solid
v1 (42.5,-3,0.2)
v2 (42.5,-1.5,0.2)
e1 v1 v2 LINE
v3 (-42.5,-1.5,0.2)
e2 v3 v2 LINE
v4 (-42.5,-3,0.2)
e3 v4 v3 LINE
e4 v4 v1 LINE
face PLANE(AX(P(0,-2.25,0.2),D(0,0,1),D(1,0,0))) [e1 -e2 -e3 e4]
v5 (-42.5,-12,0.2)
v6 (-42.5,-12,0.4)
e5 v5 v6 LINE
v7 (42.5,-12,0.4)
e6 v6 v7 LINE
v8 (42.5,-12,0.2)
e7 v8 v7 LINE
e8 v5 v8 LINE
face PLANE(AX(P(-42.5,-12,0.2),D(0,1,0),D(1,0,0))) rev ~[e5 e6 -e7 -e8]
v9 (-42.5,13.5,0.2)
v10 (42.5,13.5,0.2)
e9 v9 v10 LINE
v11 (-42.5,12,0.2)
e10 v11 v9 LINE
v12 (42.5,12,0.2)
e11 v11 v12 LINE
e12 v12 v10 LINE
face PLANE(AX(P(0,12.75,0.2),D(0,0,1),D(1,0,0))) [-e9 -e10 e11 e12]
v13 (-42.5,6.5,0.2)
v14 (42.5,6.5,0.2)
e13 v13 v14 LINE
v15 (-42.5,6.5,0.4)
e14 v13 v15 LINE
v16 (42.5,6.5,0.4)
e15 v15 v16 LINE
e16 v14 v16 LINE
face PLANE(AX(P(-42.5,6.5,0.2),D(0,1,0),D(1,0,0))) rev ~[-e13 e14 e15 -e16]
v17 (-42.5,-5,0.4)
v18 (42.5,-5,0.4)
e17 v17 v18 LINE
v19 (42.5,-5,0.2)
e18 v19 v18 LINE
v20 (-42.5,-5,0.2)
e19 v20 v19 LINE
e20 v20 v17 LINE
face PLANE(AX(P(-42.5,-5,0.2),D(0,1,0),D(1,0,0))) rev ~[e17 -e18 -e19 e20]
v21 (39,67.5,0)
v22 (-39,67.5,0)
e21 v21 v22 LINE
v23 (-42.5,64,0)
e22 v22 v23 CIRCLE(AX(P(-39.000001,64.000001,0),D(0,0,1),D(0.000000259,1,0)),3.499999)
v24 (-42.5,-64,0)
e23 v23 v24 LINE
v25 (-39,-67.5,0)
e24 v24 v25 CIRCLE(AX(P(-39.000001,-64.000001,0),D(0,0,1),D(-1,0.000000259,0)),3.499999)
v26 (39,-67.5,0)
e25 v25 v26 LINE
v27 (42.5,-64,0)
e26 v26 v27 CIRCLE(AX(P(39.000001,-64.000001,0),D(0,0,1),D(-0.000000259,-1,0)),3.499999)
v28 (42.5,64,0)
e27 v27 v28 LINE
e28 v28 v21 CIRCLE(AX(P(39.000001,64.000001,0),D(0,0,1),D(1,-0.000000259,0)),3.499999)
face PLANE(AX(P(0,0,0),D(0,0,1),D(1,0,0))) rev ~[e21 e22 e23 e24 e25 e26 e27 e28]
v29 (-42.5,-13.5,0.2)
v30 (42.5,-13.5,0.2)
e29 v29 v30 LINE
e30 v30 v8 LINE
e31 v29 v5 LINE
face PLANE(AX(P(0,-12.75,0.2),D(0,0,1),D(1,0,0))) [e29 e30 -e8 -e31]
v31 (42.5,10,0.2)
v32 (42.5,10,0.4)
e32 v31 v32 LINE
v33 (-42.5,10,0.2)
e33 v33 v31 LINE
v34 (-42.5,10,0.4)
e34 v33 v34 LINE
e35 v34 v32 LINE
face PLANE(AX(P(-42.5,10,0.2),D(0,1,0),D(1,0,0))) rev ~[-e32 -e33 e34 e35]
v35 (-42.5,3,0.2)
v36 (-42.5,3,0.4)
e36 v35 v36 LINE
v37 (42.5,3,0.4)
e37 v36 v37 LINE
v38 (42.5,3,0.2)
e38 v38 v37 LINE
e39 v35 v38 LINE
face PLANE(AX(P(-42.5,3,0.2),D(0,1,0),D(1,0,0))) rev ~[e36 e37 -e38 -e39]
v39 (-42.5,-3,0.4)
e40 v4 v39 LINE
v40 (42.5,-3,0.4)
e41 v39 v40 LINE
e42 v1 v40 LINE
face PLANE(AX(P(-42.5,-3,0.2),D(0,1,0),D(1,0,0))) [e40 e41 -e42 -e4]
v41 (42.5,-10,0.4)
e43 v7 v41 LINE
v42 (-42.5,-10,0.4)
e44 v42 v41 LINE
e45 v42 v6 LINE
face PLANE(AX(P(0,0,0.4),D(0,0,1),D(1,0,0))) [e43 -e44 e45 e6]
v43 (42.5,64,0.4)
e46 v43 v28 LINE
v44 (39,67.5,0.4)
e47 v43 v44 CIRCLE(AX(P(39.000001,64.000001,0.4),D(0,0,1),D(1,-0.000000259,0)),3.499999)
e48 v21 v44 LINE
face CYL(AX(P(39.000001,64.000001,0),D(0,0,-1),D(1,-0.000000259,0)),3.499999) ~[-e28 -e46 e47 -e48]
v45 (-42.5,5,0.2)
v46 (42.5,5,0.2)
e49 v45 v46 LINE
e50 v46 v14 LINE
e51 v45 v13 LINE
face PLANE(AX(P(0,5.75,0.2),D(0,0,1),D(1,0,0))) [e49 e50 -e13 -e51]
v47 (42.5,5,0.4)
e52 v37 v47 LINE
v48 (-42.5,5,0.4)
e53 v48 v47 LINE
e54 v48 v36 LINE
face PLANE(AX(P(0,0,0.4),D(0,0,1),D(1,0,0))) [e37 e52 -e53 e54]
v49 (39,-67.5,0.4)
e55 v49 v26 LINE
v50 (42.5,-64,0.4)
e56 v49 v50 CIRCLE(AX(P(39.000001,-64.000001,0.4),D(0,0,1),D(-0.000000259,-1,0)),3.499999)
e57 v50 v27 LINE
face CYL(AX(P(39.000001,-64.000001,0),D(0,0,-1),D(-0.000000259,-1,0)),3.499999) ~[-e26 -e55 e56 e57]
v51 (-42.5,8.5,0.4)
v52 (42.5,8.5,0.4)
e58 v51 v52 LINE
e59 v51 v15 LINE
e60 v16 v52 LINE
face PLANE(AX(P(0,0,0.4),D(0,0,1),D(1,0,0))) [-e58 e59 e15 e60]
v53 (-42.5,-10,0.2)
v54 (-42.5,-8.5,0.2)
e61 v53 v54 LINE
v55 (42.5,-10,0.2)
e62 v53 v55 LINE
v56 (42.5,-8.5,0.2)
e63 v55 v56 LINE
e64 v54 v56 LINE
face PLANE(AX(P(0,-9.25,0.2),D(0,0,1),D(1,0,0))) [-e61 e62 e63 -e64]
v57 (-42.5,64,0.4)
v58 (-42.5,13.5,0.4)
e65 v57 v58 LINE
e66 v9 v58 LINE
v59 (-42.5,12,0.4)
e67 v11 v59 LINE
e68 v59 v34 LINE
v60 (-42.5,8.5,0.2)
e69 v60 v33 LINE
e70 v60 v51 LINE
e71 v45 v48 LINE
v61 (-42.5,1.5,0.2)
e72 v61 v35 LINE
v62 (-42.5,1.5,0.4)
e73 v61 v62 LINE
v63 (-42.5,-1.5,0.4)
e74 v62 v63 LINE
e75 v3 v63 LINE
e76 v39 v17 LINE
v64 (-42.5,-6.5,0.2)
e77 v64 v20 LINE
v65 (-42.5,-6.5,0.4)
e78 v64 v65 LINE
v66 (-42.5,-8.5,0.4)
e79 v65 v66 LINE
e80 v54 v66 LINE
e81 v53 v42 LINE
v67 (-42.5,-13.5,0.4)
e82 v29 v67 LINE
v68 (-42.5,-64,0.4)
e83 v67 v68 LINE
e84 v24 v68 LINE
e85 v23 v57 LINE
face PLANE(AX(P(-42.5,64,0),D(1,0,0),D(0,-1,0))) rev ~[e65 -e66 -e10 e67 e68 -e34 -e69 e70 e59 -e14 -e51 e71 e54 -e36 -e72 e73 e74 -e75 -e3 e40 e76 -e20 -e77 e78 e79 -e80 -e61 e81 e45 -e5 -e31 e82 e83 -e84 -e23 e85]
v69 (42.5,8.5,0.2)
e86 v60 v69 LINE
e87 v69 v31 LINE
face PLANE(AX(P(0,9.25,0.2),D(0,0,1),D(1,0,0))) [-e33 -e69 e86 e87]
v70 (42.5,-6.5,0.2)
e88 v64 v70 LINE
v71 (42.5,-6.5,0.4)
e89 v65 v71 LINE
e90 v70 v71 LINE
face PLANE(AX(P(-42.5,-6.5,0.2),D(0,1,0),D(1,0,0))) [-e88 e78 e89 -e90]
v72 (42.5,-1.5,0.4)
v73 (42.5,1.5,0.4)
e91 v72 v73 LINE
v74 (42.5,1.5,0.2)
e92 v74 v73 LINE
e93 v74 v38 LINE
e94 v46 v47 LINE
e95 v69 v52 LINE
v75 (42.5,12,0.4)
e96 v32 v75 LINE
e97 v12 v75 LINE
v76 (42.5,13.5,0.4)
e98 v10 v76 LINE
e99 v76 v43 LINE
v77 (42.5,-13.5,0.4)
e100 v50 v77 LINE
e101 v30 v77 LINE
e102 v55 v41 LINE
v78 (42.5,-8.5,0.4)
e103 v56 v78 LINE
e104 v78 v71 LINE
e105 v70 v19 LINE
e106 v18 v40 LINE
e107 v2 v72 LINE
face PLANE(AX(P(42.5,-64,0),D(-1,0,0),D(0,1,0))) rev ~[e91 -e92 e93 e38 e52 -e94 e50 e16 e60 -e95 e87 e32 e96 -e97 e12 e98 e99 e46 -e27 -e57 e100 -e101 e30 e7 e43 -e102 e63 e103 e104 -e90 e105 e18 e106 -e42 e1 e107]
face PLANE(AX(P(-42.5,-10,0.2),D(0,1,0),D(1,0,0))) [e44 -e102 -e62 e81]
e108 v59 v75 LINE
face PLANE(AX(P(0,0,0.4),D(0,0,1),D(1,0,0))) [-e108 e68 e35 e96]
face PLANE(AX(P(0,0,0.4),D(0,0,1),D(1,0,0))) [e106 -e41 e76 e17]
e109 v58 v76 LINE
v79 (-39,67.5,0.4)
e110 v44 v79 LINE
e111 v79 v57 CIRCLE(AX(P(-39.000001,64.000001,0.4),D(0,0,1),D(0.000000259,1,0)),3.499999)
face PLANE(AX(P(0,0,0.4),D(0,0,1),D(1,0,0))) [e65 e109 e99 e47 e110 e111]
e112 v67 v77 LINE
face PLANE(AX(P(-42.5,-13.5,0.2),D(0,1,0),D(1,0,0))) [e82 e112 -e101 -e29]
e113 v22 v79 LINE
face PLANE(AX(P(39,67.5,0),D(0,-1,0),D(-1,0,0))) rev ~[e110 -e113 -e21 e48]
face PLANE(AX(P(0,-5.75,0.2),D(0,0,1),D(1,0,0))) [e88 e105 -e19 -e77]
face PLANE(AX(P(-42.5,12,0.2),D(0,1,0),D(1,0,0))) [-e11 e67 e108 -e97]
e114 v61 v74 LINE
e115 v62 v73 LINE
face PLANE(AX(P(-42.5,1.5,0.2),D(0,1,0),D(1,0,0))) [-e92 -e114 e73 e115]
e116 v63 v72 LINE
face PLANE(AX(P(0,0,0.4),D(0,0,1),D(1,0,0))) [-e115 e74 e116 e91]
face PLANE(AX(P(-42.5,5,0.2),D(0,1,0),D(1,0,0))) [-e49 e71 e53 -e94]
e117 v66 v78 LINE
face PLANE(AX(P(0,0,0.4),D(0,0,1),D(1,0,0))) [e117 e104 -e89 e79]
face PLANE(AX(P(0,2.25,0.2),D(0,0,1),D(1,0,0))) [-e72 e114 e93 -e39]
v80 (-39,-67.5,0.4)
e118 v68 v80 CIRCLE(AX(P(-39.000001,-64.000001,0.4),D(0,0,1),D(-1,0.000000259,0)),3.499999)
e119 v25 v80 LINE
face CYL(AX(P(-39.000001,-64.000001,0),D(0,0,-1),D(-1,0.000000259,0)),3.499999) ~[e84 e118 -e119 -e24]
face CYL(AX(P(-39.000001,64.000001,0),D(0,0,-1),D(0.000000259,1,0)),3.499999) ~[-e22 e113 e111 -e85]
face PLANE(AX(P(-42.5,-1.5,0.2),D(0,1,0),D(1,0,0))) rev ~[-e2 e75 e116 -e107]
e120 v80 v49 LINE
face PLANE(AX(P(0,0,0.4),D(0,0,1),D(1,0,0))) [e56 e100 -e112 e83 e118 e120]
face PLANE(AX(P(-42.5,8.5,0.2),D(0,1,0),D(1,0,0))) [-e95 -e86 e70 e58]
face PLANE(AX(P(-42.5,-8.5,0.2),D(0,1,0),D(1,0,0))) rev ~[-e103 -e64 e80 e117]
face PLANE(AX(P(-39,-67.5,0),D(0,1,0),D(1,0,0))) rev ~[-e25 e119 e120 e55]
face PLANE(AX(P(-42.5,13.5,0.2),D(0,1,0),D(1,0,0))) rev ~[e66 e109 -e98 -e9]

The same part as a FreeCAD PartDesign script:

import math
import FreeCAD as App
import Part
import Sketcher
from FreeCAD import Vector

doc = App.newDocument("Part")
body = doc.addObject("PartDesign::Body", "Body")

sketch1 = body.newObject("Sketcher::SketchObject", "Sketch")
sketch1.AttachmentSupport = (doc.getObject("XY_Plane"), [""])
sketch1.MapMode = "FlatFace"
sketch1.addGeometry(Part.ArcOfCircle(Part.Circle(Vector(39.000001, 64.000001, 0), Vector(0, 0, 1), 3.499999), math.radians(-0.000015), math.radians(90.000015)), False)
sketch1.addGeometry(Part.LineSegment(Vector(39, 67.5, 0), Vector(-39, 67.5, 0)), False)
sketch1.addGeometry(Part.ArcOfCircle(Part.Circle(Vector(-39.000001, 64.000001, 0), Vector(0, 0, 1), 3.499999), math.radians(89.999985), math.radians(180.000015)), False)
sketch1.addGeometry(Part.LineSegment(Vector(-42.5, 64, 0), Vector(-42.5, -64, 0)), False)
sketch1.addGeometry(Part.ArcOfCircle(Part.Circle(Vector(-39.000001, -64.000001, 0), Vector(0, 0, 1), 3.499999), math.radians(179.999985), math.radians(270.000015)), False)
sketch1.addGeometry(Part.LineSegment(Vector(-39, -67.5, 0), Vector(39, -67.5, 0)), False)
sketch1.addGeometry(Part.ArcOfCircle(Part.Circle(Vector(39.000001, -64.000001, 0), Vector(0, 0, 1), 3.499999), math.radians(-90.000015), math.radians(0.000015)), False)
sketch1.addGeometry(Part.LineSegment(Vector(42.5, -64, 0), Vector(42.5, 64, 0)), False)
sketch1.addConstraint(Sketcher.Constraint("Tangent", 0, 2, 1, 1))
sketch1.addConstraint(Sketcher.Constraint("Tangent", 1, 2, 2, 1))
sketch1.addConstraint(Sketcher.Constraint("Tangent", 2, 2, 3, 1))
sketch1.addConstraint(Sketcher.Constraint("Tangent", 3, 2, 4, 1))
sketch1.addConstraint(Sketcher.Constraint("Tangent", 4, 2, 5, 1))
sketch1.addConstraint(Sketcher.Constraint("Tangent", 5, 2, 6, 1))
sketch1.addConstraint(Sketcher.Constraint("Tangent", 6, 2, 7, 1))
sketch1.addConstraint(Sketcher.Constraint("Tangent", 7, 2, 0, 1))
sketch1.addConstraint(Sketcher.Constraint("Horizontal", 1))
sketch1.addConstraint(Sketcher.Constraint("Vertical", 3))
sketch1.addConstraint(Sketcher.Constraint("Horizontal", 5))
sketch1.addConstraint(Sketcher.Constraint("Vertical", 7))
sketch1.addConstraint(Sketcher.Constraint("Equal", 0, 2))
sketch1.addConstraint(Sketcher.Constraint("Equal", 2, 4))
sketch1.addConstraint(Sketcher.Constraint("Equal", 4, 6))
sketch1.addConstraint(Sketcher.Constraint("Symmetric", 0, 3, 4, 3, -1, 1))
sketch1.addConstraint(Sketcher.Constraint("Radius", 0, 3.499999))
sketch1.addConstraint(Sketcher.Constraint("DistanceX", 1, 2, 1, 1, 78.0))
sketch1.addConstraint(Sketcher.Constraint("DistanceY", 3, 2, 3, 1, 128.0))
pad1 = body.newObject("PartDesign::Pad", "Pad")
pad1.Profile = sketch1
pad1.Length = 0.2

sketch2 = body.newObject("Sketcher::SketchObject", "Sketch001")
sketch2.AttachmentSupport = (doc.getObject("XY_Plane"), [""])
sketch2.MapMode = "FlatFace"
sketch2.addGeometry(Part.ArcOfCircle(Part.Circle(Vector(39.000001, 64.000001, 0), Vector(0, 0, 1), 3.499999), math.radians(-0.000015), math.radians(90.000015)), False)
sketch2.addGeometry(Part.LineSegment(Vector(39, 67.5, 0), Vector(-39, 67.5, 0)), False)
sketch2.addGeometry(Part.ArcOfCircle(Part.Circle(Vector(-39.000001, 64.000001, 0), Vector(0, 0, 1), 3.499999), math.radians(89.999985), math.radians(180.000015)), False)
sketch2.addGeometry(Part.LineSegment(Vector(-42.5, 64, 0), Vector(-42.5, -64, 0)), False)
sketch2.addGeometry(Part.ArcOfCircle(Part.Circle(Vector(-39.000001, -64.000001, 0), Vector(0, 0, 1), 3.499999), math.radians(179.999985), math.radians(270.000015)), False)
sketch2.addGeometry(Part.LineSegment(Vector(-39, -67.5, 0), Vector(39, -67.5, 0)), False)
sketch2.addGeometry(Part.ArcOfCircle(Part.Circle(Vector(39.000001, -64.000001, 0), Vector(0, 0, 1), 3.499999), math.radians(-90.000015), math.radians(0.000015)), False)
sketch2.addGeometry(Part.LineSegment(Vector(42.5, -64, 0), Vector(42.5, 64, 0)), False)
sketch2.addConstraint(Sketcher.Constraint("Tangent", 0, 2, 1, 1))
sketch2.addConstraint(Sketcher.Constraint("Tangent", 1, 2, 2, 1))
sketch2.addConstraint(Sketcher.Constraint("Tangent", 2, 2, 3, 1))
sketch2.addConstraint(Sketcher.Constraint("Tangent", 3, 2, 4, 1))
sketch2.addConstraint(Sketcher.Constraint("Tangent", 4, 2, 5, 1))
sketch2.addConstraint(Sketcher.Constraint("Tangent", 5, 2, 6, 1))
sketch2.addConstraint(Sketcher.Constraint("Tangent", 6, 2, 7, 1))
sketch2.addConstraint(Sketcher.Constraint("Tangent", 7, 2, 0, 1))
sketch2.addConstraint(Sketcher.Constraint("Horizontal", 1))
sketch2.addConstraint(Sketcher.Constraint("Vertical", 3))
sketch2.addConstraint(Sketcher.Constraint("Horizontal", 5))
sketch2.addConstraint(Sketcher.Constraint("Vertical", 7))
sketch2.addConstraint(Sketcher.Constraint("Equal", 0, 2))
sketch2.addConstraint(Sketcher.Constraint("Equal", 2, 4))
sketch2.addConstraint(Sketcher.Constraint("Equal", 4, 6))
sketch2.addConstraint(Sketcher.Constraint("Symmetric", 0, 3, 4, 3, -1, 1))
sketch2.addConstraint(Sketcher.Constraint("Radius", 0, 3.499999))
sketch2.addConstraint(Sketcher.Constraint("DistanceX", 1, 2, 1, 1, 78.0))
sketch2.addConstraint(Sketcher.Constraint("DistanceY", 3, 2, 3, 1, 128.0))
pad2 = body.newObject("PartDesign::Pad", "Pad001")
pad2.Profile = sketch2
pad2.Length = 0.4

sketch3 = body.newObject("Sketcher::SketchObject", "Sketch002")
sketch3.AttachmentSupport = (doc.getObject("XY_Plane"), [""])
sketch3.MapMode = "FlatFace"
sketch3.AttachmentOffset = App.Placement(Vector(0, 0, 0.2), App.Rotation())
sketch3.addGeometry(Part.LineSegment(Vector(-42.5, 13.5, 0), Vector(-42.5, 12, 0)), False)
sketch3.addGeometry(Part.LineSegment(Vector(-42.5, 12, 0), Vector(42.5, 12, 0)), False)
sketch3.addGeometry(Part.LineSegment(Vector(42.5, 12, 0), Vector(42.5, 13.5, 0)), False)
sketch3.addGeometry(Part.LineSegment(Vector(42.5, 13.5, 0), Vector(-42.5, 13.5, 0)), False)
sketch3.addGeometry(Part.LineSegment(Vector(-42.5, 10, 0), Vector(-42.5, 8.5, 0)), False)
sketch3.addGeometry(Part.LineSegment(Vector(-42.5, 8.5, 0), Vector(42.5, 8.5, 0)), False)
sketch3.addGeometry(Part.LineSegment(Vector(42.5, 8.5, 0), Vector(42.5, 10, 0)), False)
sketch3.addGeometry(Part.LineSegment(Vector(42.5, 10, 0), Vector(-42.5, 10, 0)), False)
sketch3.addGeometry(Part.LineSegment(Vector(-42.5, 6.5, 0), Vector(-42.5, 5, 0)), False)
sketch3.addGeometry(Part.LineSegment(Vector(-42.5, 5, 0), Vector(42.5, 5, 0)), False)
sketch3.addGeometry(Part.LineSegment(Vector(42.5, 5, 0), Vector(42.5, 6.5, 0)), False)
sketch3.addGeometry(Part.LineSegment(Vector(42.5, 6.5, 0), Vector(-42.5, 6.5, 0)), False)
sketch3.addGeometry(Part.LineSegment(Vector(-42.5, -12, 0), Vector(-42.5, -13.5, 0)), False)
sketch3.addGeometry(Part.LineSegment(Vector(-42.5, -13.5, 0), Vector(42.5, -13.5, 0)), False)
sketch3.addGeometry(Part.LineSegment(Vector(42.5, -13.5, 0), Vector(42.5, -12, 0)), False)
sketch3.addGeometry(Part.LineSegment(Vector(42.5, -12, 0), Vector(-42.5, -12, 0)), False)
sketch3.addGeometry(Part.LineSegment(Vector(-42.5, -8.5, 0), Vector(-42.5, -10, 0)), False)
sketch3.addGeometry(Part.LineSegment(Vector(-42.5, -10, 0), Vector(42.5, -10, 0)), False)
sketch3.addGeometry(Part.LineSegment(Vector(42.5, -10, 0), Vector(42.5, -8.5, 0)), False)
sketch3.addGeometry(Part.LineSegment(Vector(42.5, -8.5, 0), Vector(-42.5, -8.5, 0)), False)
sketch3.addGeometry(Part.LineSegment(Vector(-42.5, -5, 0), Vector(-42.5, -6.5, 0)), False)
sketch3.addGeometry(Part.LineSegment(Vector(-42.5, -6.5, 0), Vector(42.5, -6.5, 0)), False)
sketch3.addGeometry(Part.LineSegment(Vector(42.5, -6.5, 0), Vector(42.5, -5, 0)), False)
sketch3.addGeometry(Part.LineSegment(Vector(42.5, -5, 0), Vector(-42.5, -5, 0)), False)
sketch3.addGeometry(Part.LineSegment(Vector(-42.5, 3, 0), Vector(-42.5, 1.5, 0)), False)
sketch3.addGeometry(Part.LineSegment(Vector(-42.5, 1.5, 0), Vector(42.5, 1.5, 0)), False)
sketch3.addGeometry(Part.LineSegment(Vector(42.5, 1.5, 0), Vector(42.5, 3, 0)), False)
sketch3.addGeometry(Part.LineSegment(Vector(42.5, 3, 0), Vector(-42.5, 3, 0)), False)
sketch3.addGeometry(Part.LineSegment(Vector(-42.5, -1.5, 0), Vector(-42.5, -3, 0)), False)
sketch3.addGeometry(Part.LineSegment(Vector(-42.5, -3, 0), Vector(42.5, -3, 0)), False)
sketch3.addGeometry(Part.LineSegment(Vector(42.5, -3, 0), Vector(42.5, -1.5, 0)), False)
sketch3.addGeometry(Part.LineSegment(Vector(42.5, -1.5, 0), Vector(-42.5, -1.5, 0)), False)
sketch3.addConstraint(Sketcher.Constraint("Coincident", 0, 2, 1, 1))
sketch3.addConstraint(Sketcher.Constraint("Coincident", 1, 2, 2, 1))
sketch3.addConstraint(Sketcher.Constraint("Coincident", 2, 2, 3, 1))
sketch3.addConstraint(Sketcher.Constraint("Coincident", 3, 2, 0, 1))
sketch3.addConstraint(Sketcher.Constraint("Coincident", 4, 2, 5, 1))
sketch3.addConstraint(Sketcher.Constraint("Coincident", 5, 2, 6, 1))
sketch3.addConstraint(Sketcher.Constraint("Coincident", 6, 2, 7, 1))
sketch3.addConstraint(Sketcher.Constraint("Coincident", 7, 2, 4, 1))
sketch3.addConstraint(Sketcher.Constraint("Coincident", 8, 2, 9, 1))
sketch3.addConstraint(Sketcher.Constraint("Coincident", 9, 2, 10, 1))
sketch3.addConstraint(Sketcher.Constraint("Coincident", 10, 2, 11, 1))
sketch3.addConstraint(Sketcher.Constraint("Coincident", 11, 2, 8, 1))
sketch3.addConstraint(Sketcher.Constraint("Coincident", 12, 2, 13, 1))
sketch3.addConstraint(Sketcher.Constraint("Coincident", 13, 2, 14, 1))
sketch3.addConstraint(Sketcher.Constraint("Coincident", 14, 2, 15, 1))
sketch3.addConstraint(Sketcher.Constraint("Coincident", 15, 2, 12, 1))
sketch3.addConstraint(Sketcher.Constraint("Coincident", 16, 2, 17, 1))
sketch3.addConstraint(Sketcher.Constraint("Coincident", 17, 2, 18, 1))
sketch3.addConstraint(Sketcher.Constraint("Coincident", 18, 2, 19, 1))
sketch3.addConstraint(Sketcher.Constraint("Coincident", 19, 2, 16, 1))
sketch3.addConstraint(Sketcher.Constraint("Coincident", 20, 2, 21, 1))
sketch3.addConstraint(Sketcher.Constraint("Coincident", 21, 2, 22, 1))
sketch3.addConstraint(Sketcher.Constraint("Coincident", 22, 2, 23, 1))
sketch3.addConstraint(Sketcher.Constraint("Coincident", 23, 2, 20, 1))
sketch3.addConstraint(Sketcher.Constraint("Coincident", 24, 2, 25, 1))
sketch3.addConstraint(Sketcher.Constraint("Coincident", 25, 2, 26, 1))
sketch3.addConstraint(Sketcher.Constraint("Coincident", 26, 2, 27, 1))
sketch3.addConstraint(Sketcher.Constraint("Coincident", 27, 2, 24, 1))
sketch3.addConstraint(Sketcher.Constraint("Coincident", 28, 2, 29, 1))
sketch3.addConstraint(Sketcher.Constraint("Coincident", 29, 2, 30, 1))
sketch3.addConstraint(Sketcher.Constraint("Coincident", 30, 2, 31, 1))
sketch3.addConstraint(Sketcher.Constraint("Coincident", 31, 2, 28, 1))
sketch3.addConstraint(Sketcher.Constraint("Vertical", 0))
sketch3.addConstraint(Sketcher.Constraint("Horizontal", 1))
sketch3.addConstraint(Sketcher.Constraint("Vertical", 2))
sketch3.addConstraint(Sketcher.Constraint("Horizontal", 3))
sketch3.addConstraint(Sketcher.Constraint("Vertical", 4))
sketch3.addConstraint(Sketcher.Constraint("Horizontal", 5))
sketch3.addConstraint(Sketcher.Constraint("Vertical", 6))
sketch3.addConstraint(Sketcher.Constraint("Horizontal", 7))
sketch3.addConstraint(Sketcher.Constraint("Vertical", 8))
sketch3.addConstraint(Sketcher.Constraint("Horizontal", 9))
sketch3.addConstraint(Sketcher.Constraint("Vertical", 10))
sketch3.addConstraint(Sketcher.Constraint("Horizontal", 11))
sketch3.addConstraint(Sketcher.Constraint("Vertical", 12))
sketch3.addConstraint(Sketcher.Constraint("Horizontal", 13))
sketch3.addConstraint(Sketcher.Constraint("Vertical", 14))
sketch3.addConstraint(Sketcher.Constraint("Horizontal", 15))
sketch3.addConstraint(Sketcher.Constraint("Vertical", 16))
sketch3.addConstraint(Sketcher.Constraint("Horizontal", 17))
sketch3.addConstraint(Sketcher.Constraint("Vertical", 18))
sketch3.addConstraint(Sketcher.Constraint("Horizontal", 19))
sketch3.addConstraint(Sketcher.Constraint("Vertical", 20))
sketch3.addConstraint(Sketcher.Constraint("Horizontal", 21))
sketch3.addConstraint(Sketcher.Constraint("Vertical", 22))
sketch3.addConstraint(Sketcher.Constraint("Horizontal", 23))
sketch3.addConstraint(Sketcher.Constraint("Vertical", 24))
sketch3.addConstraint(Sketcher.Constraint("Horizontal", 25))
sketch3.addConstraint(Sketcher.Constraint("Vertical", 26))
sketch3.addConstraint(Sketcher.Constraint("Horizontal", 27))
sketch3.addConstraint(Sketcher.Constraint("Vertical", 28))
sketch3.addConstraint(Sketcher.Constraint("Horizontal", 29))
sketch3.addConstraint(Sketcher.Constraint("Vertical", 30))
sketch3.addConstraint(Sketcher.Constraint("Horizontal", 31))
sketch3.addConstraint(Sketcher.Constraint("Symmetric", 2, 2, 12, 2, -1, 1))
sketch3.addConstraint(Sketcher.Constraint("Symmetric", 0, 2, 14, 2, -1, 1))
sketch3.addConstraint(Sketcher.Constraint("Symmetric", 6, 2, 16, 2, -1, 1))
sketch3.addConstraint(Sketcher.Constraint("Symmetric", 4, 2, 18, 2, -1, 1))
sketch3.addConstraint(Sketcher.Constraint("Symmetric", 10, 2, 20, 2, -1, 1))
sketch3.addConstraint(Sketcher.Constraint("Symmetric", 8, 2, 22, 2, -1, 1))
sketch3.addConstraint(Sketcher.Constraint("Symmetric", 26, 2, 28, 2, -1, 1))
sketch3.addConstraint(Sketcher.Constraint("Symmetric", 24, 2, 30, 2, -1, 1))
sketch3.addConstraint(Sketcher.Constraint("Vertical", 3, 2, 4, 2))
sketch3.addConstraint(Sketcher.Constraint("Vertical", 2, 2, 5, 2))
sketch3.addConstraint(Sketcher.Constraint("Vertical", 7, 2, 8, 2))
sketch3.addConstraint(Sketcher.Constraint("Vertical", 6, 2, 9, 2))
sketch3.addConstraint(Sketcher.Constraint("Vertical", 11, 2, 12, 2))
sketch3.addConstraint(Sketcher.Constraint("Vertical", 23, 2, 24, 2))
sketch3.addConstraint(Sketcher.Constraint("Vertical", 22, 2, 25, 2))
sketch3.addConstraint(Sketcher.Constraint("Equal", 2, 4))
sketch3.addConstraint(Sketcher.Constraint("Equal", 6, 8))
sketch3.addConstraint(Sketcher.Constraint("Equal", 22, 24))
sketch3.addConstraint(Sketcher.Constraint("DistanceX", 1, 1, 1, 2, 85.0))
sketch3.addConstraint(Sketcher.Constraint("DistanceY", 0, 2, 0, 1, 1.5))
sketch3.addConstraint(Sketcher.Constraint("DistanceY", -1, 1, 0, 2, 12.0))
sketch3.addConstraint(Sketcher.Constraint("DistanceY", -1, 1, 6, 2, 10.0))
sketch3.addConstraint(Sketcher.Constraint("DistanceY", -1, 1, 8, 2, 5.0))
sketch3.addConstraint(Sketcher.Constraint("DistanceY", -1, 1, 26, 2, 3.0))
pocket1 = body.newObject("PartDesign::Pocket", "Pocket")
pocket1.Profile = sketch3
pocket1.Type = "ThroughAll"
pocket1.Reversed = True

doc.recompute()
